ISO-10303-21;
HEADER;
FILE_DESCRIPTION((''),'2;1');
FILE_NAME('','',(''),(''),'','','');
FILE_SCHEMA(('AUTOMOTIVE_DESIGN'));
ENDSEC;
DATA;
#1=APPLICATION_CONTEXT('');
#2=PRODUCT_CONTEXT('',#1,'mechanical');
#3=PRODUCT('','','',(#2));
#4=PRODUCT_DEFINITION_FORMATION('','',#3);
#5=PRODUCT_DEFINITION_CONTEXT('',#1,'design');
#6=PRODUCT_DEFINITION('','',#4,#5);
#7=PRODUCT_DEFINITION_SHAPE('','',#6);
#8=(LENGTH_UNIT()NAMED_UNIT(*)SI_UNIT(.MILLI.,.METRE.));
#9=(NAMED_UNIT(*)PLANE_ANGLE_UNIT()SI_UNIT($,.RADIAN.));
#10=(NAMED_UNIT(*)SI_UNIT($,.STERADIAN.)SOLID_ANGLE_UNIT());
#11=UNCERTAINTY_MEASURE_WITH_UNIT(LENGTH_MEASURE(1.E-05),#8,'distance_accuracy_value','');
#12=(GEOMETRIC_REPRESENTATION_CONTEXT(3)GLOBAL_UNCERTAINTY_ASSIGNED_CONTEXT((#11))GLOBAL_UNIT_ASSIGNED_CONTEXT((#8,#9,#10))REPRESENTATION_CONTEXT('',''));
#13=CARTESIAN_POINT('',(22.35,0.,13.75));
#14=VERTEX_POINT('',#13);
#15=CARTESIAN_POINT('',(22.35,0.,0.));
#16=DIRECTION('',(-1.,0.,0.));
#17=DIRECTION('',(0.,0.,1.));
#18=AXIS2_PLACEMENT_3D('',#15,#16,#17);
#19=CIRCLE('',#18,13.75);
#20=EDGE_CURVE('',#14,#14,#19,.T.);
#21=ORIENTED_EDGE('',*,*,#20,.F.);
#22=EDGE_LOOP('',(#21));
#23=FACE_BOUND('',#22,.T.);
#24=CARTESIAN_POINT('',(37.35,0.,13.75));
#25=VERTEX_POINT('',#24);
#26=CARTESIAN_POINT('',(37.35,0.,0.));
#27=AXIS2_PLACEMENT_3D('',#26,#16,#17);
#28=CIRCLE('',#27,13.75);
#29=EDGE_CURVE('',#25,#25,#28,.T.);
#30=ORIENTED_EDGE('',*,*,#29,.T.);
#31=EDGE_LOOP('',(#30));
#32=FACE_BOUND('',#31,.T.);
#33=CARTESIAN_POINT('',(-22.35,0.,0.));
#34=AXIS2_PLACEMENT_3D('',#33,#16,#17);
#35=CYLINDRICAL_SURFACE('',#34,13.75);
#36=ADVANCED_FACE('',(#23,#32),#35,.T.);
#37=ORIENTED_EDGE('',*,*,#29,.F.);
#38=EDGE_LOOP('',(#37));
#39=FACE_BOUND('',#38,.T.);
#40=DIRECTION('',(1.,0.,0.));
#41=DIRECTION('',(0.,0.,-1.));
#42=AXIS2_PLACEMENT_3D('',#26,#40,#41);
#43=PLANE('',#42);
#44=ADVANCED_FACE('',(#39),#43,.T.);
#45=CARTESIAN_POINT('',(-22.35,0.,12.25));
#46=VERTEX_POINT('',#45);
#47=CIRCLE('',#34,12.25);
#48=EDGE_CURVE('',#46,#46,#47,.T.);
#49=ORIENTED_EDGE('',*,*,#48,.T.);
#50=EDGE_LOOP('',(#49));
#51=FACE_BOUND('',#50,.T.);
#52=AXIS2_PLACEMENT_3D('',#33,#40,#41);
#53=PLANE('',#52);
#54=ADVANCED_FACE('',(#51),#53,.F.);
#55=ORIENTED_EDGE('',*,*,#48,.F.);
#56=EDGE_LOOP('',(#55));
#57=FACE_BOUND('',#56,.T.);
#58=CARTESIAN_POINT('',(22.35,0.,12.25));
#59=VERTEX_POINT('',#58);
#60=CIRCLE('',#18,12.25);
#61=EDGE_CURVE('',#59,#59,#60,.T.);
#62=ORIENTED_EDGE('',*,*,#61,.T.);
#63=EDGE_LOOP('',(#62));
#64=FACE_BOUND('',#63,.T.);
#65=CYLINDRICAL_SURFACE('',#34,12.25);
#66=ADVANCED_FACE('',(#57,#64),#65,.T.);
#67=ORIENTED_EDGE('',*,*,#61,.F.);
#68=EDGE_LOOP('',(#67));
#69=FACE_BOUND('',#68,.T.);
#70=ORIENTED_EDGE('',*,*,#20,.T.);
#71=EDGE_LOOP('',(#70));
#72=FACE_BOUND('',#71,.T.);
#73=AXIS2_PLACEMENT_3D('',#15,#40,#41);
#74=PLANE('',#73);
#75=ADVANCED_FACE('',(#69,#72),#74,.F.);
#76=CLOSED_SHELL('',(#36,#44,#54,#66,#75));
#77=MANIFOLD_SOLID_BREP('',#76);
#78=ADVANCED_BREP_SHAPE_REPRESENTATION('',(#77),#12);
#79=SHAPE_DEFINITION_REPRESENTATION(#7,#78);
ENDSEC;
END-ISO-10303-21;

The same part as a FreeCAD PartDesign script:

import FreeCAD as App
import Part
import Sketcher

V = App.Vector


def add_polygon(sketch, points):
    """Adds a closed chain of lines whose ends are joined by coincident constraints."""
    first, n = sketch.GeometryCount, len(points)
    for a, b in zip(points, points[1:] + points[:1]):
        sketch.addGeometry(Part.LineSegment(App.Vector(*a, 0), App.Vector(*b, 0)), False)
    for i in range(n):
        sketch.addConstraint(Sketcher.Constraint("Coincident", first + i, 2, first + (i + 1) % n, 1))

doc = App.newDocument("Part")
body = doc.addObject("PartDesign::Body", "Body")

# Sketch on XY plane
sketch1 = body.newObject("Sketcher::SketchObject", "Sketch")
sketch1.AttachmentSupport = (doc.getObject("XY_Plane"), [""])
sketch1.MapMode = "FlatFace"
add_polygon(sketch1, [(-22.35, 12.25), (-22.35, 0), (37.35, 0), (37.35, 13.75), (22.35, 13.75), (22.35, 12.25)])  # lines 0-5
sketch1.addConstraint(Sketcher.Constraint("Vertical", 0))
sketch1.addConstraint(Sketcher.Constraint("Horizontal", 1))
sketch1.addConstraint(Sketcher.Constraint("Vertical", 2))
sketch1.addConstraint(Sketcher.Constraint("Horizontal", 3))
sketch1.addConstraint(Sketcher.Constraint("Vertical", 4))
sketch1.addConstraint(Sketcher.Constraint("Horizontal", 5))
sketch1.addConstraint(Sketcher.Constraint("PointOnObject", 0, 2, -1))
sketch1.addConstraint(Sketcher.Constraint("DistanceX", 3, 2, 3, 1, 15.0))
sketch1.addConstraint(Sketcher.Constraint("DistanceX", 1, 1, 1, 2, 59.7))
sketch1.addConstraint(Sketcher.Constraint("DistanceY", 4, 2, 4, 1, 1.5))
sketch1.addConstraint(Sketcher.Constraint("DistanceY", 0, 2, 0, 1, 12.25))
sketch1.addConstraint(Sketcher.Constraint("DistanceX", 0, 2, -1, 1, 22.35))
revolution = body.newObject("PartDesign::Revolution", "Revolution")
revolution.Profile = sketch1
revolution.ReferenceAxis = (sketch1, ["H_Axis"])
revolution.Angle = 360

doc.recompute()
